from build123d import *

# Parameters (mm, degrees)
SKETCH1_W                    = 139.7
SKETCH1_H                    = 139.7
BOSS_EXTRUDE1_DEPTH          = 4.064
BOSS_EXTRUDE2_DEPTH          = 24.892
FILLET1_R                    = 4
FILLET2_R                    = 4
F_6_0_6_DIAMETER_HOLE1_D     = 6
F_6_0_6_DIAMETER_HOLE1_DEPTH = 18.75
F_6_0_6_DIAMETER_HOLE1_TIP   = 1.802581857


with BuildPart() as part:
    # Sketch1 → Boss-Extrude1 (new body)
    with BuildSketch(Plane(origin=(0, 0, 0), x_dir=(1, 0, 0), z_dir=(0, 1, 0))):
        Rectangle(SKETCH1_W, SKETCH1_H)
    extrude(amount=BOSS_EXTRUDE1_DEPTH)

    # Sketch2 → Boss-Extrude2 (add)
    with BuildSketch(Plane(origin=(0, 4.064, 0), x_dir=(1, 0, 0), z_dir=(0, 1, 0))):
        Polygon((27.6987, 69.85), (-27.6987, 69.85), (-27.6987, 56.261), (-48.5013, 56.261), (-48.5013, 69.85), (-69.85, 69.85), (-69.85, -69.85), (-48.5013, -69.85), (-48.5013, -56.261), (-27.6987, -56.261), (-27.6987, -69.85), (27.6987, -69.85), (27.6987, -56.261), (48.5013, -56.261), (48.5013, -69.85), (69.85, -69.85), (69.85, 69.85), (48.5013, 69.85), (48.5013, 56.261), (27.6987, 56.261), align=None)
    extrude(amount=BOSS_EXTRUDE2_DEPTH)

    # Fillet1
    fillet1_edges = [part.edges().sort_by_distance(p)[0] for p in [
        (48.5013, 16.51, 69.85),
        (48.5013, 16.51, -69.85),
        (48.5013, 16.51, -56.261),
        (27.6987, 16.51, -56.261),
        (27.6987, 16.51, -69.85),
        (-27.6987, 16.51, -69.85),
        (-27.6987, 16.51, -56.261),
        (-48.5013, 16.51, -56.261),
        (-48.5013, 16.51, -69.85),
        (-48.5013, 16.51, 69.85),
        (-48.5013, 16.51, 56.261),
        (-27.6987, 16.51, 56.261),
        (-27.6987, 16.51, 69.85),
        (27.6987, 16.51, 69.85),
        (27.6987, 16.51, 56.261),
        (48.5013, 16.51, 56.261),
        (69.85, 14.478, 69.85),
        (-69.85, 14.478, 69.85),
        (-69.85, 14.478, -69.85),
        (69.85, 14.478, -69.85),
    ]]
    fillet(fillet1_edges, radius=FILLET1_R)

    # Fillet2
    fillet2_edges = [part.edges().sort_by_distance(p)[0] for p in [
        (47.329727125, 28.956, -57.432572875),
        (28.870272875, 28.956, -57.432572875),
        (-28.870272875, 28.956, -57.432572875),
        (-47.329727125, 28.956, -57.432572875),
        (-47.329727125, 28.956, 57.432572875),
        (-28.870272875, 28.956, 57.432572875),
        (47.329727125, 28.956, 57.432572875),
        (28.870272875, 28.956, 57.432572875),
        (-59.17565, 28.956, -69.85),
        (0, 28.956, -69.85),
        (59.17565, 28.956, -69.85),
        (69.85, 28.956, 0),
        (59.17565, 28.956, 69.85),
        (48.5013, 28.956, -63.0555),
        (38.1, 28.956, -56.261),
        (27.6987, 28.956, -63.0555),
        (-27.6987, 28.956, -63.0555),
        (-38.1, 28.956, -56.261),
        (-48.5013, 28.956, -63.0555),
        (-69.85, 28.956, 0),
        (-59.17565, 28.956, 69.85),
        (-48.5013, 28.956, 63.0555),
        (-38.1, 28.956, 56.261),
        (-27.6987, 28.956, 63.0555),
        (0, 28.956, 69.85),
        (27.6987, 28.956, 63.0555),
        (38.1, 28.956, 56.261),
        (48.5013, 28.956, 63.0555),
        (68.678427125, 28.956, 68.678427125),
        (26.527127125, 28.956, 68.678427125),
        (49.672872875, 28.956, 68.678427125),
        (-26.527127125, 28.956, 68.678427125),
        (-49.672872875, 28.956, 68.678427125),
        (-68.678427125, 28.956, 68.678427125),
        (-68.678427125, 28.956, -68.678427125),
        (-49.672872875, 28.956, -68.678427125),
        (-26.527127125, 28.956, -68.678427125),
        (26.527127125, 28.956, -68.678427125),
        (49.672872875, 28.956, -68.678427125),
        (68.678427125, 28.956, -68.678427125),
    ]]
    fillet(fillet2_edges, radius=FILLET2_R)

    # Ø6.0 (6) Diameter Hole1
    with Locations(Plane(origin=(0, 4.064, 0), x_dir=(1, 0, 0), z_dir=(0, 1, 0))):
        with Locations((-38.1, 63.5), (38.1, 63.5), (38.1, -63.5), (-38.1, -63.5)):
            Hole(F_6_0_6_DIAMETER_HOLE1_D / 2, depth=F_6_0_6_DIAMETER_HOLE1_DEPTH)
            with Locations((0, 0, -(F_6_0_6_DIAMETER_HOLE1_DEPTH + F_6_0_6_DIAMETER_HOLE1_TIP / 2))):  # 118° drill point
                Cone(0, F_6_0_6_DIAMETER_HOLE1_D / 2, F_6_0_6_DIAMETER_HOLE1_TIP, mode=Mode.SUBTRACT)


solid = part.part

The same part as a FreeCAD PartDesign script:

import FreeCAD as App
import Part
import Sketcher

V = App.Vector
Q = App.Units.Quantity


def edges_at(feature, points):
    """Names of the edges that pass closest to the given points."""
    edges = feature.Shape.Edges
    near = lambda p: min(range(len(edges)), key=lambda i: edges[i].distToShape(Part.Vertex(*p))[0])
    return sorted({f"Edge{near(p) + 1}" for p in points})


def add_polygon(sketch, points):
    """Adds a closed chain of lines whose ends are joined by coincident constraints."""
    first, n = sketch.GeometryCount, len(points)
    for a, b in zip(points, points[1:] + points[:1]):
        sketch.addGeometry(Part.LineSegment(App.Vector(*a, 0), App.Vector(*b, 0)), False)
    for i in range(n):
        sketch.addConstraint(Sketcher.Constraint("Coincident", first + i, 2, first + (i + 1) % n, 1))

doc = App.newDocument("Part")
body = doc.addObject("PartDesign::Body", "Body")

# Sketch on XZ plane
sketch1 = doc.addObject("Sketcher::SketchObject", "Sketch")
body.addObject(sketch1)
sketch1.AttachmentSupport = (doc.XZ_Plane, [""])
sketch1.MapMode = "FlatFace"
add_polygon(sketch1, [(-70, -70), (-70, 70), (70, 70), (70, -70)])  # lines 0-3
sketch1.addConstraint(Sketcher.Constraint("Vertical", 0))
sketch1.addConstraint(Sketcher.Constraint("Horizontal", 1))
sketch1.addConstraint(Sketcher.Constraint("Vertical", 2))
sketch1.addConstraint(Sketcher.Constraint("Horizontal", 3))
sketch1.addConstraint(Sketcher.Constraint("Symmetric", 0, 2, 2, 2, -1, 1))
sketch1.addConstraint(Sketcher.Constraint("Equal", 3, 0))
sketch1.addConstraint(Sketcher.Constraint("DistanceX", 1, 1, 1, 2, Q("5.5 in")))
pad1 = doc.addObject("PartDesign::Pad", "Pad")
body.addObject(pad1)
pad1.Profile = sketch1
pad1.Length = Q("0.16 in")
pad1.Reversed = True

# Sketch on XZ plane
sketch2 = doc.addObject("Sketcher::SketchObject", "Sketch001")
body.addObject(sketch2)
sketch2.AttachmentSupport = (doc.XZ_Plane, [""])
sketch2.MapMode = "FlatFace"
sketch2.AttachmentOffset = App.Placement(V(0, 0, -0.16 * 25.4), App.Rotation())
add_polygon(sketch2, [(28, -70), (-28, -70), (-28, -56), (-49, -56), (-49, -70), (-70, -70), (-70, 70), (-49, 70), (-49, 56), (-28, 56), (-28, 70), (28, 70), (28, 56), (49, 56), (49, 70), (70, 70), (70, -70), (49, -70), (49, -56), (28, -56)])  # lines 0-19
sketch2.addConstraint(Sketcher.Constraint("Horizontal", 0))
sketch2.addConstraint(Sketcher.Constraint("Vertical", 1))
sketch2.addConstraint(Sketcher.Constraint("Horizontal", 2))
sketch2.addConstraint(Sketcher.Constraint("Vertical", 3))
sketch2.addConstraint(Sketcher.Constraint("Horizontal", 4))
sketch2.addConstraint(Sketcher.Constraint("Vertical", 5))
sketch2.addConstraint(Sketcher.Constraint("Horizontal", 6))
sketch2.addConstraint(Sketcher.Constraint("Vertical", 7))
sketch2.addConstraint(Sketcher.Constraint("Horizontal", 8))
sketch2.addConstraint(Sketcher.Constraint("Vertical", 9))
sketch2.addConstraint(Sketcher.Constraint("Horizontal", 10))
sketch2.addConstraint(Sketcher.Constraint("Vertical", 11))
sketch2.addConstraint(Sketcher.Constraint("Horizontal", 12))
sketch2.addConstraint(Sketcher.Constraint("Vertical", 13))
sketch2.addConstraint(Sketcher.Constraint("Horizontal", 14))
sketch2.addConstraint(Sketcher.Constraint("Vertical", 15))
sketch2.addConstraint(Sketcher.Constraint("Horizontal", 16))
sketch2.addConstraint(Sketcher.Constraint("Vertical", 17))
sketch2.addConstraint(Sketcher.Constraint("Horizontal", 18))
sketch2.addConstraint(Sketcher.Constraint("Vertical", 19))
sketch2.addConstraint(Sketcher.Constraint("Symmetric", 0, 2, 10, 2, -1, 1))
sketch2.addConstraint(Sketcher.Constraint("Symmetric", 2, 2, 12, 2, -1, 1))
sketch2.addConstraint(Sketcher.Constraint("Symmetric", 4, 2, 14, 2, -1, 1))
sketch2.addConstraint(Sketcher.Constraint("Symmetric", 6, 2, 16, 2, -1, 1))
sketch2.addConstraint(Sketcher.Constraint("Symmetric", 8, 2, 18, 2, -1, 1))
sketch2.addConstraint(Sketcher.Constraint("Symmetric", 8, 2, 11, 2, -2))
sketch2.addConstraint(Sketcher.Constraint("Symmetric", 6, 2, 13, 2, -2))
sketch2.addConstraint(Sketcher.Constraint("Horizontal", 0, 2, 3, 2))
sketch2.addConstraint(Sketcher.Constraint("DistanceY", 5, 1, 5, 2, Q("5.5 in")))
sketch2.addConstraint(Sketcher.Constraint("DistanceX", 6, 2, 10, 2, Q("3 in")))
sketch2.addConstraint(Sketcher.Constraint("DistanceX", 0, 2, 0, 1, Q("2.181 in")))
sketch2.addConstraint(Sketcher.Constraint("DistanceY", 1, 1, 1, 2, Q("0.535 in")))
sketch2.addConstraint(Sketcher.Constraint("DistanceX", 4, 2, -1, 1, Q("2.75 in")))
pad2 = doc.addObject("PartDesign::Pad", "Pad001")
body.addObject(pad2)
pad2.Profile = sketch2
pad2.Length = Q("0.98 in")
pad2.Reversed = True
doc.recompute()

fillet = doc.addObject("PartDesign::Fillet", "Fillet")
body.addObject(fillet)
fillet.Base = (pad2, edges_at(pad2, [
    (48.501, 16.51, 69.85),
    (48.501, 16.51, -69.85),
    (48.501, 16.51, -56.261),
    (27.699, 16.51, -56.261),
    (27.699, 16.51, -69.85),
    (-27.699, 16.51, -69.85),
    (-27.699, 16.51, -56.261),
    (-48.501, 16.51, -56.261),
    (-48.501, 16.51, -69.85),
    (-48.501, 16.51, 69.85),
    (-48.501, 16.51, 56.261),
    (-27.699, 16.51, 56.261),
    (-27.699, 16.51, 69.85),
    (27.699, 16.51, 69.85),
    (27.699, 16.51, 56.261),
    (48.501, 16.51, 56.261),
    (69.85, 14.478, 69.85),
    (-69.85, 14.478, 69.85),
    (-69.85, 14.478, -69.85),
    (69.85, 14.478, -69.85),
]))
fillet.Radius = 4
doc.recompute()

fillet2 = doc.addObject("PartDesign::Fillet", "Fillet001")
body.addObject(fillet2)
fillet2.Base = (fillet, edges_at(fillet, [
    (47.33, 28.956, -57.433),
    (28.87, 28.956, -57.433),
    (-28.87, 28.956, -57.433),
    (-47.33, 28.956, -57.433),
    (-47.33, 28.956, 57.433),
    (-28.87, 28.956, 57.433),
    (47.33, 28.956, 57.433),
    (28.87, 28.956, 57.433),
    (-59.176, 28.956, -69.85),
    (0, 28.956, -69.85),
    (59.176, 28.956, -69.85),
    (69.85, 28.956, 0),
    (59.176, 28.956, 69.85),
    (48.501, 28.956, -63.056),
    (38.1, 28.956, -56.261),
    (27.699, 28.956, -63.056),
    (-27.699, 28.956, -63.056),
    (-38.1, 28.956, -56.261),
    (-48.501, 28.956, -63.056),
    (-69.85, 28.956, 0),
    (-59.176, 28.956, 69.85),
    (-48.501, 28.956, 63.056),
    (-38.1, 28.956, 56.261),
    (-27.699, 28.956, 63.056),
    (0, 28.956, 69.85),
    (27.699, 28.956, 63.056),
    (38.1, 28.956, 56.261),
    (48.501, 28.956, 63.056),
    (68.678, 28.956, 68.678),
    (26.527, 28.956, 68.678),
    (49.673, 28.956, 68.678),
    (-26.527, 28.956, 68.678),
    (-49.673, 28.956, 68.678),
    (-68.678, 28.956, 68.678),
    (-68.678, 28.956, -68.678),
    (-49.673, 28.956, -68.678),
    (-26.527, 28.956, -68.678),
    (26.527, 28.956, -68.678),
    (49.673, 28.956, -68.678),
    (68.678, 28.956, -68.678),
]))
fillet2.Radius = 4

# Sketch on XZ plane
sketch3 = doc.addObject("Sketcher::SketchObject", "Sketch002")
body.addObject(sketch3)
sketch3.AttachmentSupport = (doc.XZ_Plane, [""])
sketch3.MapMode = "FlatFace"
sketch3.AttachmentOffset = App.Placement(V(0, 0, -0.16 * 25.4), App.Rotation())
sketch3.addGeometry(Part.Circle(V(-38.1, -63.5, 0), V(0, 0, 1), 3), False)
sketch3.addGeometry(Part.Circle(V(38.1, -63.5, 0), V(0, 0, 1), 3), False)
sketch3.addGeometry(Part.Circle(V(38.1, 63.5, 0), V(0, 0, 1), 3), False)
sketch3.addGeometry(Part.Circle(V(-38.1, 63.5, 0), V(0, 0, 1), 3), False)
sketch3.addConstraint(Sketcher.Constraint("Equal", 0, 1))
sketch3.addConstraint(Sketcher.Constraint("Equal", 1, 2))
sketch3.addConstraint(Sketcher.Constraint("Equal", 2, 3))
sketch3.addConstraint(Sketcher.Constraint("Symmetric", 0, 3, 2, 3, -1, 1))
sketch3.addConstraint(Sketcher.Constraint("Symmetric", 1, 3, 3, 3, -1, 1))
sketch3.addConstraint(Sketcher.Constraint("Symmetric", 0, 3, 1, 3, -2))
sketch3.addConstraint(Sketcher.Constraint("DistanceX", 0, 3, 1, 3, Q("3 in")))
sketch3.addConstraint(Sketcher.Constraint("DistanceY", 1, 3, 2, 3, Q("5 in")))
sketch3.addConstraint(Sketcher.Constraint("Diameter", 0, Q("6 mm")))
doc.recompute()
hole = doc.addObject("PartDesign::Hole", "Hole")
body.addObject(hole)
hole.Profile = sketch3
hole.ThreadType = "None"
hole.Diameter = 6
hole.DepthType = "Dimension"
hole.Depth = 18.75
hole.DrillPoint = "Angled"
hole.DrillPointAngle = 118
hole.Reversed = True

doc.recompute()
